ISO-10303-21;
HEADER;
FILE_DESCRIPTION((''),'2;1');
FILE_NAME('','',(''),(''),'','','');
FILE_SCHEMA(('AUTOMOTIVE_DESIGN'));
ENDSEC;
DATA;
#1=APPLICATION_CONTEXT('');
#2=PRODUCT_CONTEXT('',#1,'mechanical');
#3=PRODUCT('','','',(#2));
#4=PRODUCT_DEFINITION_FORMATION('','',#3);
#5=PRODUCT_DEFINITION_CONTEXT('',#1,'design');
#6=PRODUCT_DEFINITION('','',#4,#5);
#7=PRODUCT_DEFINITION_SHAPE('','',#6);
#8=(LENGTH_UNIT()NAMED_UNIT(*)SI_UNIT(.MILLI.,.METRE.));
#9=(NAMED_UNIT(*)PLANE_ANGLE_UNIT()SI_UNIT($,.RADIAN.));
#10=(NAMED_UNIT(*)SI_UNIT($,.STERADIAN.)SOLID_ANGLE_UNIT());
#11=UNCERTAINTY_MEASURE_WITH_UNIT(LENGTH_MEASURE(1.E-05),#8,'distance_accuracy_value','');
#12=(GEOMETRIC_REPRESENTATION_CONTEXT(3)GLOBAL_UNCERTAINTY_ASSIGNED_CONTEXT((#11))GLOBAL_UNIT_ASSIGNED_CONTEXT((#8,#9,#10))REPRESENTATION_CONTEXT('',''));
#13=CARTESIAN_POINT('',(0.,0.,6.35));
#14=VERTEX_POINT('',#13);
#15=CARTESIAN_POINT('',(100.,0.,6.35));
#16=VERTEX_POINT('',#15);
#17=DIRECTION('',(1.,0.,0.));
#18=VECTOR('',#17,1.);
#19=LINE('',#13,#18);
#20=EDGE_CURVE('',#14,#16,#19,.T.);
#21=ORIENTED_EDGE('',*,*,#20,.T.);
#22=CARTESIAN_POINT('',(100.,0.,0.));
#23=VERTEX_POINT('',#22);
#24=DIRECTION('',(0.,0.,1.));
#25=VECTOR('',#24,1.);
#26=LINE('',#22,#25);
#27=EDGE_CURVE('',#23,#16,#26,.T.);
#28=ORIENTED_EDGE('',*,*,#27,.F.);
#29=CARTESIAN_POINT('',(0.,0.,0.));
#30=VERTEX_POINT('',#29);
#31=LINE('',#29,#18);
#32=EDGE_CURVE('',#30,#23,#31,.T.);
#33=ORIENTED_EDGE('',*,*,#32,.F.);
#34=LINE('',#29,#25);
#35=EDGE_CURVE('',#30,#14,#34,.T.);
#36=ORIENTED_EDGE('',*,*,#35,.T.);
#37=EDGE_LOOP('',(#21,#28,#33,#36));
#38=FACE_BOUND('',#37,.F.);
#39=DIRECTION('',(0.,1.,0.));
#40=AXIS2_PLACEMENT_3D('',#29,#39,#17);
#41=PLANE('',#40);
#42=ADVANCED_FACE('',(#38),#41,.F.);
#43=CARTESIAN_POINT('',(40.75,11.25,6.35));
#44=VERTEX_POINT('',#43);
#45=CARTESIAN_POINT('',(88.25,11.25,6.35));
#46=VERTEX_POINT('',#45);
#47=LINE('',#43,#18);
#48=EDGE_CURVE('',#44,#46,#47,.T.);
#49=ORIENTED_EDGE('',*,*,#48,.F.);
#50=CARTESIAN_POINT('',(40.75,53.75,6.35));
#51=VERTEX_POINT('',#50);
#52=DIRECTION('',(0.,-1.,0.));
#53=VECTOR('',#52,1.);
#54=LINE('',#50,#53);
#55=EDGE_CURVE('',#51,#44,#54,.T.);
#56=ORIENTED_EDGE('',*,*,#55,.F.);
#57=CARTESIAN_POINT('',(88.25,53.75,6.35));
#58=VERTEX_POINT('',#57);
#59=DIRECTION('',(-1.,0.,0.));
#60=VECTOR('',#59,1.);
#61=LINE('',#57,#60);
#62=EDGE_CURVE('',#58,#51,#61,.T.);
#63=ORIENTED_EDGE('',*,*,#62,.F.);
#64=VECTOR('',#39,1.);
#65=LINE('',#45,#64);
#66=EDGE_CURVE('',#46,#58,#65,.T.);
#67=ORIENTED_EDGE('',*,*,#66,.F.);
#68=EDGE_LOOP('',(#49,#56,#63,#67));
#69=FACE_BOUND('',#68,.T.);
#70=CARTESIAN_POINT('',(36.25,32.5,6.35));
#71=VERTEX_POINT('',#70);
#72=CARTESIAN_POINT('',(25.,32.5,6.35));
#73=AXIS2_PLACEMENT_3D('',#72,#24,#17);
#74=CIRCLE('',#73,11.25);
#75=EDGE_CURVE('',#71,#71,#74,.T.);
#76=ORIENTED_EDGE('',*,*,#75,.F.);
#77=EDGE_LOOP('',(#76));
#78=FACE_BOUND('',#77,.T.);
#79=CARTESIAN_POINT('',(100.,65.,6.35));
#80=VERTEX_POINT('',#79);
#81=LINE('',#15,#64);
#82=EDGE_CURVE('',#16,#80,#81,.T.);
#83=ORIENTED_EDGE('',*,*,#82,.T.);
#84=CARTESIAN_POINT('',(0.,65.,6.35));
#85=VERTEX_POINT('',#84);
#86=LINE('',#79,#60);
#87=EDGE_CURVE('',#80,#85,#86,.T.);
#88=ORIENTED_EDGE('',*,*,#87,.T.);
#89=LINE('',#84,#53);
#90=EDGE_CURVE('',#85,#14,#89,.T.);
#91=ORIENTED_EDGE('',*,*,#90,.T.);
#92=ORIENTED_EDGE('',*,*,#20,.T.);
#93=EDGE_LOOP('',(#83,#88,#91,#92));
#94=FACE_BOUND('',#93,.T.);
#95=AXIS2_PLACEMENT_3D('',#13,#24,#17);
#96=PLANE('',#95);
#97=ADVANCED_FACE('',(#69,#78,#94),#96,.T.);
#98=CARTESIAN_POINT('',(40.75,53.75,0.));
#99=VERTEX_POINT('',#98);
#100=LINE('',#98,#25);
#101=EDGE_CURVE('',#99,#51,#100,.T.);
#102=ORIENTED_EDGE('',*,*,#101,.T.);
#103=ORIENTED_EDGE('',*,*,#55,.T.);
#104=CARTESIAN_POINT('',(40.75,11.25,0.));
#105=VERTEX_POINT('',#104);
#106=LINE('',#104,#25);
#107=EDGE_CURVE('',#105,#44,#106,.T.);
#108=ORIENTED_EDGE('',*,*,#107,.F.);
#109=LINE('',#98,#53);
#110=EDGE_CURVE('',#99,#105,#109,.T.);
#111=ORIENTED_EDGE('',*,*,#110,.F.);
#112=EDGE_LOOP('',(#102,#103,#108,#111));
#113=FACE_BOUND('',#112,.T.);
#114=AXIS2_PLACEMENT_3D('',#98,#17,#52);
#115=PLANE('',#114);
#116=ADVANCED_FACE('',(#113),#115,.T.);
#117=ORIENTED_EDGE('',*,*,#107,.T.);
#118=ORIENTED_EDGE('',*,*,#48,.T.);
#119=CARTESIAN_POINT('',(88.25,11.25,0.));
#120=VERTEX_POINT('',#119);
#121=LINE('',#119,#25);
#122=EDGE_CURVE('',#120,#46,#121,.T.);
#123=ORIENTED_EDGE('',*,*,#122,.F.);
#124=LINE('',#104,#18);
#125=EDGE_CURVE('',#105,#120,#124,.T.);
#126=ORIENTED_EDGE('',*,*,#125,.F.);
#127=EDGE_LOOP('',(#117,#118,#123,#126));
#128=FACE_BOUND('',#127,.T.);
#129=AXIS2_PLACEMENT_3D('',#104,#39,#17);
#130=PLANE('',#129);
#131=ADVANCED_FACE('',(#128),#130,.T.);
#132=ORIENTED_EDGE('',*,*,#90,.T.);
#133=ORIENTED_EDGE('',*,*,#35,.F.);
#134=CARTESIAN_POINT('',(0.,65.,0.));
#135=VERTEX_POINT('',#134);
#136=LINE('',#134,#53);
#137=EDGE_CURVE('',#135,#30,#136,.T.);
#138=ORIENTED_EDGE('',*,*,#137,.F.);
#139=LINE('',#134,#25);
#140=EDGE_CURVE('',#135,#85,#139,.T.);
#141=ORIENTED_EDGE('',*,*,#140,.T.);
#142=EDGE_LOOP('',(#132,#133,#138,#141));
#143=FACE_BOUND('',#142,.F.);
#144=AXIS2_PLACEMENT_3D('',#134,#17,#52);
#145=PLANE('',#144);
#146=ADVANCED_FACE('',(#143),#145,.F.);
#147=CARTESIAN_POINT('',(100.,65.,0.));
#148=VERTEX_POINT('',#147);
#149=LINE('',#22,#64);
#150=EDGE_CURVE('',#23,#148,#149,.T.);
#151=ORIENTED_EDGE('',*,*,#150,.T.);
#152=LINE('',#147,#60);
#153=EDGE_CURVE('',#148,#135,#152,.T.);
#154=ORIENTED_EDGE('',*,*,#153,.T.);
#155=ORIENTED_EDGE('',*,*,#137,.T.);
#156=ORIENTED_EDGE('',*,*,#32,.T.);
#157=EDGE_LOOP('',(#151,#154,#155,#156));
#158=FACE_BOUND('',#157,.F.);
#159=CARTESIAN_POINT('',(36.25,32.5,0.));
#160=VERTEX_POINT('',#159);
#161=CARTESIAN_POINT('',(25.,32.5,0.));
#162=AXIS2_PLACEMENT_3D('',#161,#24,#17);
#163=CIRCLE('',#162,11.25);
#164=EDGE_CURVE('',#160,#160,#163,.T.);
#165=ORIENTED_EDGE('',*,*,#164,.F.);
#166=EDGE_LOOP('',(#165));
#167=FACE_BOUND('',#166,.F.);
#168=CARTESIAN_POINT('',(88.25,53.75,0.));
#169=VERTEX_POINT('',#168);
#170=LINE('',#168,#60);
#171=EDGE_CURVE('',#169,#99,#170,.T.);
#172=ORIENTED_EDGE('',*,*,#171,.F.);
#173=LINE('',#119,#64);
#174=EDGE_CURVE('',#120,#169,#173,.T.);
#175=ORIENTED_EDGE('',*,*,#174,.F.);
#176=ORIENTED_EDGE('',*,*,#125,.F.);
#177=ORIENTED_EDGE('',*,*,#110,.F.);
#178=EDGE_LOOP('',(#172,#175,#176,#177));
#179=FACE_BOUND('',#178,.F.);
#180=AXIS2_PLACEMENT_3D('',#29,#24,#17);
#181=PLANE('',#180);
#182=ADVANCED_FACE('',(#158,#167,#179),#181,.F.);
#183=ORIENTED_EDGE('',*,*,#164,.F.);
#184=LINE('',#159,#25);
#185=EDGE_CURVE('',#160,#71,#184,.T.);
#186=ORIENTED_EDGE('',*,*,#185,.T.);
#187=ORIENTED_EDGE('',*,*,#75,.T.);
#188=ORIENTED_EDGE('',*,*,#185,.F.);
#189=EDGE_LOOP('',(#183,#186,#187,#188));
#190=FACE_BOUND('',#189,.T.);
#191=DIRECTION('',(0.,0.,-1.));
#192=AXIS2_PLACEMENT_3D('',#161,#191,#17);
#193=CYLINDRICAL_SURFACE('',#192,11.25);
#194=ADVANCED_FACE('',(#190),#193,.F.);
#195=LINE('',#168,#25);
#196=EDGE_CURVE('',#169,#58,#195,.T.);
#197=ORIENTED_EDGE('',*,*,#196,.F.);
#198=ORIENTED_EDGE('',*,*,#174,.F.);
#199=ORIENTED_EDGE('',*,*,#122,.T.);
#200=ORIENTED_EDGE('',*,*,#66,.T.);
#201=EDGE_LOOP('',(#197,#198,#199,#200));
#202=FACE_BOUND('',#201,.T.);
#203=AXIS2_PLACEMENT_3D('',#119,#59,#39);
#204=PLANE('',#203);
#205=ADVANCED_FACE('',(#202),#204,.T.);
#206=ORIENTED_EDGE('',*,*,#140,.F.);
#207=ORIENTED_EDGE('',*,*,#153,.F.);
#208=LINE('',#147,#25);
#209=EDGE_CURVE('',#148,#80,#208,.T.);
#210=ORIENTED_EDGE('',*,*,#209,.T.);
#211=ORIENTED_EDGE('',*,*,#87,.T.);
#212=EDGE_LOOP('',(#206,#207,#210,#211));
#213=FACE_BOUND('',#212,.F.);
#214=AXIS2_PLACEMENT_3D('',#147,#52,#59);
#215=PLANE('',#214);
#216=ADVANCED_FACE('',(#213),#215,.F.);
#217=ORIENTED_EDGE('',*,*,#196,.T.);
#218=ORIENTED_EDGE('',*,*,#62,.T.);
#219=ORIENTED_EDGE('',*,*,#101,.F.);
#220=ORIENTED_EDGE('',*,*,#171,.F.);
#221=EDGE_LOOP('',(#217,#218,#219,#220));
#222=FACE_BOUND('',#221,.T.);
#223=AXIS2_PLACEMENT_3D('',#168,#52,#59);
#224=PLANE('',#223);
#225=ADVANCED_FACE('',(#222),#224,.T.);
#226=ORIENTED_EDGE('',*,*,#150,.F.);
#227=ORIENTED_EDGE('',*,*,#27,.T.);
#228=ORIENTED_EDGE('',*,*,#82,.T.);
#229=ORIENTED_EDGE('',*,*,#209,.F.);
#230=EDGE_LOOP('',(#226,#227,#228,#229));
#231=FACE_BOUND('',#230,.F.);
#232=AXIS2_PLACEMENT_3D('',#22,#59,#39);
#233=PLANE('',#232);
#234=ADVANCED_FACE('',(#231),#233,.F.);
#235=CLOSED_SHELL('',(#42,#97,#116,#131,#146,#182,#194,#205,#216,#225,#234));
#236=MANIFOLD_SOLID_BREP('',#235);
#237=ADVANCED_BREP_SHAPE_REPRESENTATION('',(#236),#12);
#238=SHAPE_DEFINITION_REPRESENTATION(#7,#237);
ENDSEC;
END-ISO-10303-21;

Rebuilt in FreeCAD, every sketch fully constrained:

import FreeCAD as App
import Part
import Sketcher
from FreeCAD import Vector


def add_polygon(sketch, points):
    """Adds a closed chain of lines whose ends are joined by coincident constraints."""
    first, n = sketch.GeometryCount, len(points)
    for a, b in zip(points, points[1:] + points[:1]):
        sketch.addGeometry(Part.LineSegment(App.Vector(*a, 0), App.Vector(*b, 0)), False)
    for i in range(n):
        sketch.addConstraint(Sketcher.Constraint("Coincident", first + i, 2, first + (i + 1) % n, 1))

doc = App.newDocument("Part")
body = doc.addObject("PartDesign::Body", "Body")

# Sketch on XY plane
sketch1 = body.newObject("Sketcher::SketchObject", "Sketch")
sketch1.AttachmentSupport = (doc.getObject("XY_Plane"), [""])
sketch1.MapMode = "FlatFace"
add_polygon(sketch1, [(0, 65), (0, 0), (100, 0), (100, 65)])  # lines 0-3
sketch1.addGeometry(Part.Circle(Vector(25, 32, 0), Vector(0, 0, 1), 11), False)  # 4
add_polygon(sketch1, [(41, 54), (88, 54), (88, 11), (41, 11)])  # lines 5-8
sketch1.addConstraint([
    Sketcher.Constraint("Vertical", 0),
    Sketcher.Constraint("Horizontal", 1),
    Sketcher.Constraint("Vertical", 2),
    Sketcher.Constraint("Horizontal", 3),
    Sketcher.Constraint("Horizontal", 5),
    Sketcher.Constraint("Vertical", 6),
    Sketcher.Constraint("Horizontal", 7),
    Sketcher.Constraint("Vertical", 8),
    Sketcher.Constraint("Coincident", 0, 2, -1, 1),
    Sketcher.Constraint("Diameter", 4, 22.5),
    Sketcher.Constraint("DistanceX", 1, 1, 1, 2, 100.0),
    Sketcher.Constraint("DistanceY", 0, 2, 0, 1, 65.0),
    Sketcher.Constraint("DistanceX", 5, 1, 5, 2, 47.5),
    Sketcher.Constraint("DistanceY", 6, 2, 6, 1, 42.5),
    Sketcher.Constraint("DistanceX", 4, 3, 1, 2, 75.0),
    Sketcher.Constraint("DistanceY", -1, 1, 4, 3, 32.5),
    Sketcher.Constraint("DistanceX", -1, 1, 5, 2, 88.25),
    Sketcher.Constraint("DistanceY", -1, 1, 5, 2, 53.75),
])
pad1 = body.newObject("PartDesign::Pad", "Pad")
pad1.Profile = sketch1
pad1.Length = 6.35

doc.recompute()
